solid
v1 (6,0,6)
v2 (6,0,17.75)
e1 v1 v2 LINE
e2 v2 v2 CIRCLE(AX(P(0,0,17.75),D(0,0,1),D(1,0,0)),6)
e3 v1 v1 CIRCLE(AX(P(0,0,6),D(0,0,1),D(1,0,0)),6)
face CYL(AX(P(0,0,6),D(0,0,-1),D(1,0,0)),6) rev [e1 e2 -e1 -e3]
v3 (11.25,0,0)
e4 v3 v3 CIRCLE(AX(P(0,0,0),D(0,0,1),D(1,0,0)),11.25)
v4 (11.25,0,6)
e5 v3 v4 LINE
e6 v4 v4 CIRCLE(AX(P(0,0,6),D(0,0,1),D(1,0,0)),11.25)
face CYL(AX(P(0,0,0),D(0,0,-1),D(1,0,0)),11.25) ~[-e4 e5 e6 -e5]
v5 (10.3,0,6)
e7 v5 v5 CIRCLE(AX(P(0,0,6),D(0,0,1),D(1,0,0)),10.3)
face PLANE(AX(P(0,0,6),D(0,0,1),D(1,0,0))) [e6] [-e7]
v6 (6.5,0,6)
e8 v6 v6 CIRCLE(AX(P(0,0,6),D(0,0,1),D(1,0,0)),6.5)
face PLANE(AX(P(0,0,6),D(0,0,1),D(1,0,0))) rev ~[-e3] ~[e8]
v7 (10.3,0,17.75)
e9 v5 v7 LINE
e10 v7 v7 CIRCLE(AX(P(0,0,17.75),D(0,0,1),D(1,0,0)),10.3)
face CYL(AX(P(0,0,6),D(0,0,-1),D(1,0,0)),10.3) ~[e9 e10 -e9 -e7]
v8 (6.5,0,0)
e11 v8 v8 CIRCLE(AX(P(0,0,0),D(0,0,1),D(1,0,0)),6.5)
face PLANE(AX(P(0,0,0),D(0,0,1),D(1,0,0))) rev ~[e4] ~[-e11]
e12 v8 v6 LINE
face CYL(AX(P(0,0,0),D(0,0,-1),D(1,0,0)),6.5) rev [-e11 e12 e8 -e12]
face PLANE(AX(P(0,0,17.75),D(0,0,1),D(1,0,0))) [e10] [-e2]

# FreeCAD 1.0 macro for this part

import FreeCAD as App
import Part
import Sketcher

V = App.Vector
Q = App.Units.Quantity

doc = App.newDocument("Part")
body = doc.addObject("PartDesign::Body", "Body")

# Sketch on XY plane
sketch1 = body.newObject("Sketcher::SketchObject", "Sketch")
sketch1.AttachmentSupport = (doc.getObject("XY_Plane"), [""])
sketch1.MapMode = "FlatFace"
sketch1.addGeometry([
    Part.Circle(V(0, 0, 0), V(0, 0, 1), 11),
    Part.Circle(V(0, 0, 0), V(0, 0, 1), 6),
], False)
sketch1.addConstraint([
    Sketcher.Constraint("Coincident", 0, 3, -1, 1),
    Sketcher.Constraint("Coincident", 1, 3, -1, 1),
    Sketcher.Constraint("Diameter", 1, Q("13 mm")),
    Sketcher.Constraint("Diameter", 0, Q("22.5 mm")),
])
pad1 = body.newObject("PartDesign::Pad", "Pad")
pad1.Profile = sketch1
pad1.Length = 6

# Sketch on XY plane
sketch2 = body.newObject("Sketcher::SketchObject", "Sketch001")
sketch2.AttachmentSupport = (doc.getObject("XY_Plane"), [""])
sketch2.MapMode = "FlatFace"
sketch2.AttachmentOffset = App.Placement(V(0, 0, 6), App.Rotation())
sketch2.addGeometry([
    Part.Circle(V(0, 0, 0), V(0, 0, 1), 10),
    Part.Circle(V(0, 0, 0), V(0, 0, 1), 6),
], False)
sketch2.addConstraint([
    Sketcher.Constraint("Coincident", 0, 3, -1, 1),
    Sketcher.Constraint("Coincident", 1, 3, -1, 1),
    Sketcher.Constraint("Diameter", 1, Q("12 mm")),
    Sketcher.Constraint("Diameter", 0, Q("20.6 mm")),
])
pad2 = body.newObject("PartDesign::Pad", "Pad001")
pad2.Profile = sketch2
pad2.Length = 11.75

doc.recompute()
